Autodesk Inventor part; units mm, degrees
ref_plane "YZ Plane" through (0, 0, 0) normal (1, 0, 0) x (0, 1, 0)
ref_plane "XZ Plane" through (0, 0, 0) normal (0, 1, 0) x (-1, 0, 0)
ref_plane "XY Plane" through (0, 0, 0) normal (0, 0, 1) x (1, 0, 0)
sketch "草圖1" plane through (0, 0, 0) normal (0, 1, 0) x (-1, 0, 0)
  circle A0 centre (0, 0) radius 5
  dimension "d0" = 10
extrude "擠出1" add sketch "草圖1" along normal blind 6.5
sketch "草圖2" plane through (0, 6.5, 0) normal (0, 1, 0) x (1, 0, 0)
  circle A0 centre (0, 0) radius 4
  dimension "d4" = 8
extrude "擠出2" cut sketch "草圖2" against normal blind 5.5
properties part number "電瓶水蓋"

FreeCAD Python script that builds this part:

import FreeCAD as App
import Part
import Sketcher
from FreeCAD import Vector
Q = App.Units.Quantity

doc = App.newDocument("Part")
body = doc.addObject("PartDesign::Body", "Body")

# Sketch on XZ plane
sketch1 = body.newObject("Sketcher::SketchObject", "Sketch")
sketch1.AttachmentSupport = (doc.getObject("XZ_Plane"), [""])
sketch1.MapMode = "FlatFace"
sketch1.addGeometry(Part.Circle(Vector(0, 0, 0), Vector(0, 0, 1), 5), False)
sketch1.addConstraint(Sketcher.Constraint("Coincident", 0, 3, -1, 1))
sketch1.addConstraint(Sketcher.Constraint("Diameter", 0, Q("10 mm")))
pad1 = body.newObject("PartDesign::Pad", "Pad")
pad1.Profile = sketch1
pad1.Length = 6.5
pad1.Reversed = True

# Sketch on XZ plane
sketch2 = body.newObject("Sketcher::SketchObject", "Sketch001")
sketch2.AttachmentSupport = (doc.getObject("XZ_Plane"), [""])
sketch2.MapMode = "FlatFace"
sketch2.AttachmentOffset = App.Placement(Vector(0, 0, -6.5), App.Rotation())
sketch2.addGeometry(Part.Circle(Vector(0, 0, 0), Vector(0, 0, 1), 4), False)
sketch2.addConstraint(Sketcher.Constraint("Coincident", 0, 3, -1, 1))
sketch2.addConstraint(Sketcher.Constraint("Diameter", 0, Q("8 mm")))
pocket1 = body.newObject("PartDesign::Pocket", "Pocket")
pocket1.Profile = sketch2
pocket1.Length = 5.5
pocket1.Reversed = True

doc.recompute()
